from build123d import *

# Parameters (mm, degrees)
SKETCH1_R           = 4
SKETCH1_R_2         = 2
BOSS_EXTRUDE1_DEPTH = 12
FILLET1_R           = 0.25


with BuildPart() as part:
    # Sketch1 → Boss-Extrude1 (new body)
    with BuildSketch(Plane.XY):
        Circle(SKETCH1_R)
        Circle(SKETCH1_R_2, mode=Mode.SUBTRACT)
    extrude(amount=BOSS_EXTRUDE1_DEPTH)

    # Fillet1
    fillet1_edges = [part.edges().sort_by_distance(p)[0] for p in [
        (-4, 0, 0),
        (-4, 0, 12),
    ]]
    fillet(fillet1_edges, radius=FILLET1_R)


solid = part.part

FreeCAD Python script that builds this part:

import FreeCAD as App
import Part
import Sketcher
from FreeCAD import Vector
Q = App.Units.Quantity


def edges_at(feature, points):
    """Names of the edges that pass closest to the given points."""
    edges = feature.Shape.Edges
    near = lambda p: min(range(len(edges)), key=lambda i: edges[i].distToShape(Part.Vertex(*p))[0])
    return sorted({f"Edge{near(p) + 1}" for p in points})

doc = App.newDocument("Part")
body = doc.addObject("PartDesign::Body", "Body")

# Sketch on XY plane
sketch1 = doc.addObject("Sketcher::SketchObject", "Sketch")
body.addObject(sketch1)
sketch1.AttachmentSupport = (doc.XY_Plane, [""])
sketch1.MapMode = "FlatFace"
sketch1.addGeometry(Part.Circle(Vector(0, 0, 0), Vector(0, 0, 1), 4), False)
sketch1.addGeometry(Part.Circle(Vector(0, 0, 0), Vector(0, 0, 1), 2), False)
sketch1.addConstraint(Sketcher.Constraint("Coincident", 0, 3, -1, 1))
sketch1.addConstraint(Sketcher.Constraint("Coincident", 1, 3, -1, 1))
sketch1.addConstraint(Sketcher.Constraint("Diameter", 0, Q("8 mm")))
sketch1.addConstraint(Sketcher.Constraint("Diameter", 1, Q("4 mm")))
pad1 = doc.addObject("PartDesign::Pad", "Pad")
body.addObject(pad1)
pad1.Profile = sketch1
pad1.Length = 12
doc.recompute()

fillet = doc.addObject("PartDesign::Fillet", "Fillet")
body.addObject(fillet)
fillet.Base = (pad1, edges_at(pad1, [(-4, 0, 0), (-4, 0, 12)]))
fillet.Radius = 0.25

doc.recompute()
